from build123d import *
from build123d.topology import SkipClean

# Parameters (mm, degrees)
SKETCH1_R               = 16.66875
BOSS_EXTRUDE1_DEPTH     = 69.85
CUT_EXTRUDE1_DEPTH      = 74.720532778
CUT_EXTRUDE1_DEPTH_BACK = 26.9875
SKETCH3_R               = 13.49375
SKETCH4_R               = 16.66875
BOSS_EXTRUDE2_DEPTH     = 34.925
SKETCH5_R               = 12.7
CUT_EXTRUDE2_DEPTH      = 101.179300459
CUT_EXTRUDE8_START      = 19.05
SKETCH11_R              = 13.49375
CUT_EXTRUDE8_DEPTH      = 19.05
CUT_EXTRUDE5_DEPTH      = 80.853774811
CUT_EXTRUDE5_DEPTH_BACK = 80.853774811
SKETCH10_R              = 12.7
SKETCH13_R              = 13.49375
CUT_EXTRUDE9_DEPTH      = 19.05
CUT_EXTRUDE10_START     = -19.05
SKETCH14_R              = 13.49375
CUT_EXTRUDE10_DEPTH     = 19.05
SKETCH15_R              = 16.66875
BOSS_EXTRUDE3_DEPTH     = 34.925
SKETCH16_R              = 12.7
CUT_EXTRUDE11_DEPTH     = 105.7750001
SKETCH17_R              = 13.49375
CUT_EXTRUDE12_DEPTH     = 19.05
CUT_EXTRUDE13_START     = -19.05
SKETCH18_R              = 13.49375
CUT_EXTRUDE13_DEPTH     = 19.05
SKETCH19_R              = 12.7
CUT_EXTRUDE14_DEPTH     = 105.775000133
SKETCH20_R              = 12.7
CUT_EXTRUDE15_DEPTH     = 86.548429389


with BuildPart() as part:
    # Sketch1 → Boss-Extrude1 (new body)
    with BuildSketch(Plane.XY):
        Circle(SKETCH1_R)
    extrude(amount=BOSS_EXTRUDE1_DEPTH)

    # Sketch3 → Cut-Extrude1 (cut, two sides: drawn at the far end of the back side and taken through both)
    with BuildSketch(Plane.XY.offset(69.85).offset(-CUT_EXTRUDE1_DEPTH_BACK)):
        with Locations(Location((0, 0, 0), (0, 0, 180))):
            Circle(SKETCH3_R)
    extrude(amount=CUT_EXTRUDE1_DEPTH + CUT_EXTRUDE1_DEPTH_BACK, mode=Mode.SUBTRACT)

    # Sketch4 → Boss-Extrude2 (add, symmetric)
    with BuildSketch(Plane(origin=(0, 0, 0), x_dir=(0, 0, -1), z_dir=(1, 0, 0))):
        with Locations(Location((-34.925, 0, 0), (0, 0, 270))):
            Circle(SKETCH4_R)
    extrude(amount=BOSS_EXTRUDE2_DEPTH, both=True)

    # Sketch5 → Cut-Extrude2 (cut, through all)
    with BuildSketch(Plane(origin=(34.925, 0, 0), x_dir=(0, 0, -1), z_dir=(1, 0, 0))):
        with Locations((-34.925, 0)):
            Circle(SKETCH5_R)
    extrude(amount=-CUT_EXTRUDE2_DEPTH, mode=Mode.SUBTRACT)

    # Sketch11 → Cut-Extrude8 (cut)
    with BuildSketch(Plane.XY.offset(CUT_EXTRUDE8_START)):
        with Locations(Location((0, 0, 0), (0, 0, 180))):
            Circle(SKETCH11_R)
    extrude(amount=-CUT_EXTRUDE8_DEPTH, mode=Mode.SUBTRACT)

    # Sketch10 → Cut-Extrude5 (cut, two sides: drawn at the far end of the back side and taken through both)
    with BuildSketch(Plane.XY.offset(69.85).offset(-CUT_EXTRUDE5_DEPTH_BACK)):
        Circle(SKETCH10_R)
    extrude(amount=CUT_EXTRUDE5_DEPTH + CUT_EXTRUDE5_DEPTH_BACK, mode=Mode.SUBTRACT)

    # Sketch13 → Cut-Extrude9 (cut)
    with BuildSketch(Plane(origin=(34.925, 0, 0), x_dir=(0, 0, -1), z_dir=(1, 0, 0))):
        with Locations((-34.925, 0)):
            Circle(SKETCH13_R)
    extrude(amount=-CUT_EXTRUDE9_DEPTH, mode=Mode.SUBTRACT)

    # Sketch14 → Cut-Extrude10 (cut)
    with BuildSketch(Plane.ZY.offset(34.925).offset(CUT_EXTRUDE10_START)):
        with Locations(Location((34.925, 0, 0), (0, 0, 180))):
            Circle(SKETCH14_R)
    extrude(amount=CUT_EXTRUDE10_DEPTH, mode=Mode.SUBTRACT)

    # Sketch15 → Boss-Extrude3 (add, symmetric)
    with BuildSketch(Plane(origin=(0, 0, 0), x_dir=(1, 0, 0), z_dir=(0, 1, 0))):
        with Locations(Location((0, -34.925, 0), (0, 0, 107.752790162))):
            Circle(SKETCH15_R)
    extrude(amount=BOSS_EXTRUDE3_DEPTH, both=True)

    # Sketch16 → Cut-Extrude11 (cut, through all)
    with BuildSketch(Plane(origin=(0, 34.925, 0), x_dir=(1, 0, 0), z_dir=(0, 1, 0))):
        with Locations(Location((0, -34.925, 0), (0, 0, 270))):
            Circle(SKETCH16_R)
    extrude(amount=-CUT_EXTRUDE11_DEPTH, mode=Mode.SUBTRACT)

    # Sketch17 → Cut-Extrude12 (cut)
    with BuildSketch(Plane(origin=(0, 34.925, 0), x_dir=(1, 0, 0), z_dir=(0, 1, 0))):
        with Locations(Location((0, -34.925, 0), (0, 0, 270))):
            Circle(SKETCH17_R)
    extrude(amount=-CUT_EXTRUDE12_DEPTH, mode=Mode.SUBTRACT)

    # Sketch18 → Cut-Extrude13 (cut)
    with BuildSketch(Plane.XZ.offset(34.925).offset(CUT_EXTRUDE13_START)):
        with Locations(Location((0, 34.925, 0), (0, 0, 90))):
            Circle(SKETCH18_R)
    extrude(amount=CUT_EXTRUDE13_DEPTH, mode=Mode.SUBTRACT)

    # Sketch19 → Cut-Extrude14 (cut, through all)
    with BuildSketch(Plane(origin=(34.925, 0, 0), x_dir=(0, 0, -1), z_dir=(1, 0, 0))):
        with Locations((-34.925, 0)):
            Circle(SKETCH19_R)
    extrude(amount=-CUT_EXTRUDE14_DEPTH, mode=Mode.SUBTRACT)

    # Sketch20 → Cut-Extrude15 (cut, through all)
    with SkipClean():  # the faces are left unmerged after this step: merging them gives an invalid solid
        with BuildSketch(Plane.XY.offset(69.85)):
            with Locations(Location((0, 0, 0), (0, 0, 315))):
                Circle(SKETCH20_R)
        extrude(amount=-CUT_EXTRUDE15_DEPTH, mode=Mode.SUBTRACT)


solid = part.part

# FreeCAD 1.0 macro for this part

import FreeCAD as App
import Part
import Sketcher

V = App.Vector
Q = App.Units.Quantity

doc = App.newDocument("Part")
body = doc.addObject("PartDesign::Body", "Body")

sketch1 = body.newObject("Sketcher::SketchObject", "Sketch")
sketch1.AttachmentSupport = (doc.getObject("XY_Plane"), [""])
sketch1.MapMode = "FlatFace"
sketch1.addGeometry(Part.Circle(V(0, 0, 0), V(0, 0, 1), 17), False)
sketch1.addConstraint([
    Sketcher.Constraint("Coincident", 0, 3, -1, 1),
    Sketcher.Constraint("Diameter", 0, Q("1.3125 in")),
])
pad1 = body.newObject("PartDesign::Pad", "Pad")
pad1.Profile = sketch1
pad1.Length = Q("2.75 in")

sketch2 = body.newObject("Sketcher::SketchObject", "Sketch001")
sketch2.AttachmentSupport = (doc.getObject("XY_Plane"), [""])
sketch2.MapMode = "FlatFace"
sketch2.AttachmentOffset = App.Placement(V(0, 0, 2.75 * 25.4), App.Rotation())
sketch2.addGeometry(Part.Circle(V(0, 0, 0), V(0, 0, 1), 13), False)
sketch2.addConstraint([
    Sketcher.Constraint("Coincident", 0, 3, -1, 1),
    Sketcher.Constraint("Diameter", 0, Q("1.0625 in")),
])
pocket1 = body.newObject("PartDesign::Pocket", "Pocket")
pocket1.Profile = sketch2
pocket1.Type = "TwoLengths"
pocket1.Length = 74.720533
pocket1.Length2 = Q("1.0625 in")
pocket1.Reversed = True

sketch3 = body.newObject("Sketcher::SketchObject", "Sketch002")
sketch3.AttachmentSupport = (doc.getObject("YZ_Plane"), [""])
sketch3.MapMode = "FlatFace"
sketch3.addGeometry(Part.Circle(V(0, 35, 0), V(0, 0, 1), 17), False)
sketch3.addConstraint([
    Sketcher.Constraint("PointOnObject", 0, 3, -2),
    Sketcher.Constraint("Diameter", 0, Q("1.3125 in")),
    Sketcher.Constraint("DistanceY", -1, 1, 0, 3, Q("1.375 in")),
])
pad2 = body.newObject("PartDesign::Pad", "Pad001")
pad2.Profile = sketch3
pad2.Length = Q("2.75 in")
pad2.Midplane = True

sketch4 = body.newObject("Sketcher::SketchObject", "Sketch003")
sketch4.AttachmentSupport = (doc.getObject("YZ_Plane"), [""])
sketch4.MapMode = "FlatFace"
sketch4.AttachmentOffset = App.Placement(V(0, 0, 1.375 * 25.4), App.Rotation())
sketch4.addGeometry(Part.Circle(V(0, 35, 0), V(0, 0, 1), 13), False)
sketch4.addConstraint([
    Sketcher.Constraint("PointOnObject", 0, 3, -2),
    Sketcher.Constraint("Diameter", 0, Q("1 in")),
    Sketcher.Constraint("DistanceY", -1, 1, 0, 3, Q("1.375 in")),
])
pocket2 = body.newObject("PartDesign::Pocket", "Pocket001")
pocket2.Profile = sketch4
pocket2.Type = "ThroughAll"

sketch5 = body.newObject("Sketcher::SketchObject", "Sketch004")
sketch5.AttachmentSupport = (doc.getObject("XY_Plane"), [""])
sketch5.MapMode = "FlatFace"
sketch5.AttachmentOffset = App.Placement(V(0, 0, 0.75 * 25.4), App.Rotation())
sketch5.addGeometry(Part.Circle(V(0, 0, 0), V(0, 0, 1), 13), False)
sketch5.addConstraint([
    Sketcher.Constraint("Coincident", 0, 3, -1, 1),
    Sketcher.Constraint("Diameter", 0, Q("1.0625 in")),
])
pocket3 = body.newObject("PartDesign::Pocket", "Pocket002")
pocket3.Profile = sketch5
pocket3.Length = Q("0.75 in")

sketch6 = body.newObject("Sketcher::SketchObject", "Sketch005")
sketch6.AttachmentSupport = (doc.getObject("XY_Plane"), [""])
sketch6.MapMode = "FlatFace"
sketch6.AttachmentOffset = App.Placement(V(0, 0, 2.75 * 25.4), App.Rotation())
sketch6.addGeometry(Part.Circle(V(0, 0, 0), V(0, 0, 1), 13), False)
sketch6.addConstraint([
    Sketcher.Constraint("Coincident", 0, 3, -1, 1),
    Sketcher.Constraint("Diameter", 0, Q("1 in")),
])
pocket4 = body.newObject("PartDesign::Pocket", "Pocket003")
pocket4.Profile = sketch6
pocket4.Type = "ThroughAll"
pocket4.Midplane = True

sketch7 = body.newObject("Sketcher::SketchObject", "Sketch006")
sketch7.AttachmentSupport = (doc.getObject("YZ_Plane"), [""])
sketch7.MapMode = "FlatFace"
sketch7.AttachmentOffset = App.Placement(V(0, 0, 1.375 * 25.4), App.Rotation())
sketch7.addGeometry(Part.Circle(V(0, 35, 0), V(0, 0, 1), 13), False)
sketch7.addConstraint([
    Sketcher.Constraint("PointOnObject", 0, 3, -2),
    Sketcher.Constraint("Diameter", 0, Q("1.0625 in")),
    Sketcher.Constraint("DistanceY", -1, 1, 0, 3, Q("1.375 in")),
])
pocket5 = body.newObject("PartDesign::Pocket", "Pocket004")
pocket5.Profile = sketch7
pocket5.Length = Q("0.75 in")

sketch8 = body.newObject("Sketcher::SketchObject", "Sketch007")
sketch8.AttachmentSupport = (doc.getObject("YZ_Plane"), [""])
sketch8.MapMode = "FlatFace"
sketch8.AttachmentOffset = App.Placement(V(0, 0, -0.625 * 25.4), App.Rotation())
sketch8.addGeometry(Part.Circle(V(0, 35, 0), V(0, 0, 1), 13), False)
sketch8.addConstraint([
    Sketcher.Constraint("PointOnObject", 0, 3, -2),
    Sketcher.Constraint("Diameter", 0, Q("1.0625 in")),
    Sketcher.Constraint("DistanceY", -1, 1, 0, 3, Q("1.375 in")),
])
pocket6 = body.newObject("PartDesign::Pocket", "Pocket005")
pocket6.Profile = sketch8
pocket6.Length = Q("0.75 in")

sketch9 = body.newObject("Sketcher::SketchObject", "Sketch008")
sketch9.AttachmentSupport = (doc.getObject("XZ_Plane"), [""])
sketch9.MapMode = "FlatFace"
sketch9.addGeometry(Part.Circle(V(0, 35, 0), V(0, 0, 1), 17), False)
sketch9.addConstraint([
    Sketcher.Constraint("PointOnObject", 0, 3, -2),
    Sketcher.Constraint("Diameter", 0, Q("1.3125 in")),
    Sketcher.Constraint("DistanceY", -1, 1, 0, 3, Q("1.375 in")),
])
pad3 = body.newObject("PartDesign::Pad", "Pad002")
pad3.Profile = sketch9
pad3.Length = Q("2.75 in")
pad3.Midplane = True

sketch10 = body.newObject("Sketcher::SketchObject", "Sketch009")
sketch10.AttachmentSupport = (doc.getObject("XZ_Plane"), [""])
sketch10.MapMode = "FlatFace"
sketch10.AttachmentOffset = App.Placement(V(0, 0, -1.375 * 25.4), App.Rotation())
sketch10.addGeometry(Part.Circle(V(0, 35, 0), V(0, 0, 1), 13), False)
sketch10.addConstraint([
    Sketcher.Constraint("PointOnObject", 0, 3, -2),
    Sketcher.Constraint("Diameter", 0, Q("1 in")),
    Sketcher.Constraint("DistanceY", -1, 1, 0, 3, Q("1.375 in")),
])
pocket7 = body.newObject("PartDesign::Pocket", "Pocket006")
pocket7.Profile = sketch10
pocket7.Type = "ThroughAll"
pocket7.Reversed = True

sketch11 = body.newObject("Sketcher::SketchObject", "Sketch010")
sketch11.AttachmentSupport = (doc.getObject("XZ_Plane"), [""])
sketch11.MapMode = "FlatFace"
sketch11.AttachmentOffset = App.Placement(V(0, 0, -1.375 * 25.4), App.Rotation())
sketch11.addGeometry(Part.Circle(V(0, 35, 0), V(0, 0, 1), 13), False)
sketch11.addConstraint([
    Sketcher.Constraint("PointOnObject", 0, 3, -2),
    Sketcher.Constraint("Diameter", 0, Q("1.0625 in")),
    Sketcher.Constraint("DistanceY", -1, 1, 0, 3, Q("1.375 in")),
])
pocket8 = body.newObject("PartDesign::Pocket", "Pocket007")
pocket8.Profile = sketch11
pocket8.Length = Q("0.75 in")
pocket8.Reversed = True

sketch12 = body.newObject("Sketcher::SketchObject", "Sketch011")
sketch12.AttachmentSupport = (doc.getObject("XZ_Plane"), [""])
sketch12.MapMode = "FlatFace"
sketch12.AttachmentOffset = App.Placement(V(0, 0, 0.625 * 25.4), App.Rotation())
sketch12.addGeometry(Part.Circle(V(0, 35, 0), V(0, 0, 1), 13), False)
sketch12.addConstraint([
    Sketcher.Constraint("PointOnObject", 0, 3, -2),
    Sketcher.Constraint("Diameter", 0, Q("1.0625 in")),
    Sketcher.Constraint("DistanceY", -1, 1, 0, 3, Q("1.375 in")),
])
pocket9 = body.newObject("PartDesign::Pocket", "Pocket008")
pocket9.Profile = sketch12
pocket9.Length = Q("0.75 in")
pocket9.Reversed = True

sketch13 = body.newObject("Sketcher::SketchObject", "Sketch012")
sketch13.AttachmentSupport = (doc.getObject("YZ_Plane"), [""])
sketch13.MapMode = "FlatFace"
sketch13.AttachmentOffset = App.Placement(V(0, 0, 1.375 * 25.4), App.Rotation())
sketch13.addGeometry(Part.Circle(V(0, 35, 0), V(0, 0, 1), 13), False)
sketch13.addConstraint([
    Sketcher.Constraint("PointOnObject", 0, 3, -2),
    Sketcher.Constraint("Diameter", 0, Q("1 in")),
    Sketcher.Constraint("DistanceY", -1, 1, 0, 3, Q("1.375 in")),
])
pocket10 = body.newObject("PartDesign::Pocket", "Pocket009")
pocket10.Profile = sketch13
pocket10.Type = "ThroughAll"

sketch14 = body.newObject("Sketcher::SketchObject", "Sketch013")
sketch14.AttachmentSupport = (doc.getObject("XY_Plane"), [""])
sketch14.MapMode = "FlatFace"
sketch14.AttachmentOffset = App.Placement(V(0, 0, 2.75 * 25.4), App.Rotation())
sketch14.addGeometry(Part.Circle(V(0, 0, 0), V(0, 0, 1), 13), False)
sketch14.addConstraint([
    Sketcher.Constraint("Coincident", 0, 3, -1, 1),
    Sketcher.Constraint("Diameter", 0, Q("1 in")),
])
pocket11 = body.newObject("PartDesign::Pocket", "Pocket010")
pocket11.Profile = sketch14
pocket11.Type = "ThroughAll"

doc.recompute()
